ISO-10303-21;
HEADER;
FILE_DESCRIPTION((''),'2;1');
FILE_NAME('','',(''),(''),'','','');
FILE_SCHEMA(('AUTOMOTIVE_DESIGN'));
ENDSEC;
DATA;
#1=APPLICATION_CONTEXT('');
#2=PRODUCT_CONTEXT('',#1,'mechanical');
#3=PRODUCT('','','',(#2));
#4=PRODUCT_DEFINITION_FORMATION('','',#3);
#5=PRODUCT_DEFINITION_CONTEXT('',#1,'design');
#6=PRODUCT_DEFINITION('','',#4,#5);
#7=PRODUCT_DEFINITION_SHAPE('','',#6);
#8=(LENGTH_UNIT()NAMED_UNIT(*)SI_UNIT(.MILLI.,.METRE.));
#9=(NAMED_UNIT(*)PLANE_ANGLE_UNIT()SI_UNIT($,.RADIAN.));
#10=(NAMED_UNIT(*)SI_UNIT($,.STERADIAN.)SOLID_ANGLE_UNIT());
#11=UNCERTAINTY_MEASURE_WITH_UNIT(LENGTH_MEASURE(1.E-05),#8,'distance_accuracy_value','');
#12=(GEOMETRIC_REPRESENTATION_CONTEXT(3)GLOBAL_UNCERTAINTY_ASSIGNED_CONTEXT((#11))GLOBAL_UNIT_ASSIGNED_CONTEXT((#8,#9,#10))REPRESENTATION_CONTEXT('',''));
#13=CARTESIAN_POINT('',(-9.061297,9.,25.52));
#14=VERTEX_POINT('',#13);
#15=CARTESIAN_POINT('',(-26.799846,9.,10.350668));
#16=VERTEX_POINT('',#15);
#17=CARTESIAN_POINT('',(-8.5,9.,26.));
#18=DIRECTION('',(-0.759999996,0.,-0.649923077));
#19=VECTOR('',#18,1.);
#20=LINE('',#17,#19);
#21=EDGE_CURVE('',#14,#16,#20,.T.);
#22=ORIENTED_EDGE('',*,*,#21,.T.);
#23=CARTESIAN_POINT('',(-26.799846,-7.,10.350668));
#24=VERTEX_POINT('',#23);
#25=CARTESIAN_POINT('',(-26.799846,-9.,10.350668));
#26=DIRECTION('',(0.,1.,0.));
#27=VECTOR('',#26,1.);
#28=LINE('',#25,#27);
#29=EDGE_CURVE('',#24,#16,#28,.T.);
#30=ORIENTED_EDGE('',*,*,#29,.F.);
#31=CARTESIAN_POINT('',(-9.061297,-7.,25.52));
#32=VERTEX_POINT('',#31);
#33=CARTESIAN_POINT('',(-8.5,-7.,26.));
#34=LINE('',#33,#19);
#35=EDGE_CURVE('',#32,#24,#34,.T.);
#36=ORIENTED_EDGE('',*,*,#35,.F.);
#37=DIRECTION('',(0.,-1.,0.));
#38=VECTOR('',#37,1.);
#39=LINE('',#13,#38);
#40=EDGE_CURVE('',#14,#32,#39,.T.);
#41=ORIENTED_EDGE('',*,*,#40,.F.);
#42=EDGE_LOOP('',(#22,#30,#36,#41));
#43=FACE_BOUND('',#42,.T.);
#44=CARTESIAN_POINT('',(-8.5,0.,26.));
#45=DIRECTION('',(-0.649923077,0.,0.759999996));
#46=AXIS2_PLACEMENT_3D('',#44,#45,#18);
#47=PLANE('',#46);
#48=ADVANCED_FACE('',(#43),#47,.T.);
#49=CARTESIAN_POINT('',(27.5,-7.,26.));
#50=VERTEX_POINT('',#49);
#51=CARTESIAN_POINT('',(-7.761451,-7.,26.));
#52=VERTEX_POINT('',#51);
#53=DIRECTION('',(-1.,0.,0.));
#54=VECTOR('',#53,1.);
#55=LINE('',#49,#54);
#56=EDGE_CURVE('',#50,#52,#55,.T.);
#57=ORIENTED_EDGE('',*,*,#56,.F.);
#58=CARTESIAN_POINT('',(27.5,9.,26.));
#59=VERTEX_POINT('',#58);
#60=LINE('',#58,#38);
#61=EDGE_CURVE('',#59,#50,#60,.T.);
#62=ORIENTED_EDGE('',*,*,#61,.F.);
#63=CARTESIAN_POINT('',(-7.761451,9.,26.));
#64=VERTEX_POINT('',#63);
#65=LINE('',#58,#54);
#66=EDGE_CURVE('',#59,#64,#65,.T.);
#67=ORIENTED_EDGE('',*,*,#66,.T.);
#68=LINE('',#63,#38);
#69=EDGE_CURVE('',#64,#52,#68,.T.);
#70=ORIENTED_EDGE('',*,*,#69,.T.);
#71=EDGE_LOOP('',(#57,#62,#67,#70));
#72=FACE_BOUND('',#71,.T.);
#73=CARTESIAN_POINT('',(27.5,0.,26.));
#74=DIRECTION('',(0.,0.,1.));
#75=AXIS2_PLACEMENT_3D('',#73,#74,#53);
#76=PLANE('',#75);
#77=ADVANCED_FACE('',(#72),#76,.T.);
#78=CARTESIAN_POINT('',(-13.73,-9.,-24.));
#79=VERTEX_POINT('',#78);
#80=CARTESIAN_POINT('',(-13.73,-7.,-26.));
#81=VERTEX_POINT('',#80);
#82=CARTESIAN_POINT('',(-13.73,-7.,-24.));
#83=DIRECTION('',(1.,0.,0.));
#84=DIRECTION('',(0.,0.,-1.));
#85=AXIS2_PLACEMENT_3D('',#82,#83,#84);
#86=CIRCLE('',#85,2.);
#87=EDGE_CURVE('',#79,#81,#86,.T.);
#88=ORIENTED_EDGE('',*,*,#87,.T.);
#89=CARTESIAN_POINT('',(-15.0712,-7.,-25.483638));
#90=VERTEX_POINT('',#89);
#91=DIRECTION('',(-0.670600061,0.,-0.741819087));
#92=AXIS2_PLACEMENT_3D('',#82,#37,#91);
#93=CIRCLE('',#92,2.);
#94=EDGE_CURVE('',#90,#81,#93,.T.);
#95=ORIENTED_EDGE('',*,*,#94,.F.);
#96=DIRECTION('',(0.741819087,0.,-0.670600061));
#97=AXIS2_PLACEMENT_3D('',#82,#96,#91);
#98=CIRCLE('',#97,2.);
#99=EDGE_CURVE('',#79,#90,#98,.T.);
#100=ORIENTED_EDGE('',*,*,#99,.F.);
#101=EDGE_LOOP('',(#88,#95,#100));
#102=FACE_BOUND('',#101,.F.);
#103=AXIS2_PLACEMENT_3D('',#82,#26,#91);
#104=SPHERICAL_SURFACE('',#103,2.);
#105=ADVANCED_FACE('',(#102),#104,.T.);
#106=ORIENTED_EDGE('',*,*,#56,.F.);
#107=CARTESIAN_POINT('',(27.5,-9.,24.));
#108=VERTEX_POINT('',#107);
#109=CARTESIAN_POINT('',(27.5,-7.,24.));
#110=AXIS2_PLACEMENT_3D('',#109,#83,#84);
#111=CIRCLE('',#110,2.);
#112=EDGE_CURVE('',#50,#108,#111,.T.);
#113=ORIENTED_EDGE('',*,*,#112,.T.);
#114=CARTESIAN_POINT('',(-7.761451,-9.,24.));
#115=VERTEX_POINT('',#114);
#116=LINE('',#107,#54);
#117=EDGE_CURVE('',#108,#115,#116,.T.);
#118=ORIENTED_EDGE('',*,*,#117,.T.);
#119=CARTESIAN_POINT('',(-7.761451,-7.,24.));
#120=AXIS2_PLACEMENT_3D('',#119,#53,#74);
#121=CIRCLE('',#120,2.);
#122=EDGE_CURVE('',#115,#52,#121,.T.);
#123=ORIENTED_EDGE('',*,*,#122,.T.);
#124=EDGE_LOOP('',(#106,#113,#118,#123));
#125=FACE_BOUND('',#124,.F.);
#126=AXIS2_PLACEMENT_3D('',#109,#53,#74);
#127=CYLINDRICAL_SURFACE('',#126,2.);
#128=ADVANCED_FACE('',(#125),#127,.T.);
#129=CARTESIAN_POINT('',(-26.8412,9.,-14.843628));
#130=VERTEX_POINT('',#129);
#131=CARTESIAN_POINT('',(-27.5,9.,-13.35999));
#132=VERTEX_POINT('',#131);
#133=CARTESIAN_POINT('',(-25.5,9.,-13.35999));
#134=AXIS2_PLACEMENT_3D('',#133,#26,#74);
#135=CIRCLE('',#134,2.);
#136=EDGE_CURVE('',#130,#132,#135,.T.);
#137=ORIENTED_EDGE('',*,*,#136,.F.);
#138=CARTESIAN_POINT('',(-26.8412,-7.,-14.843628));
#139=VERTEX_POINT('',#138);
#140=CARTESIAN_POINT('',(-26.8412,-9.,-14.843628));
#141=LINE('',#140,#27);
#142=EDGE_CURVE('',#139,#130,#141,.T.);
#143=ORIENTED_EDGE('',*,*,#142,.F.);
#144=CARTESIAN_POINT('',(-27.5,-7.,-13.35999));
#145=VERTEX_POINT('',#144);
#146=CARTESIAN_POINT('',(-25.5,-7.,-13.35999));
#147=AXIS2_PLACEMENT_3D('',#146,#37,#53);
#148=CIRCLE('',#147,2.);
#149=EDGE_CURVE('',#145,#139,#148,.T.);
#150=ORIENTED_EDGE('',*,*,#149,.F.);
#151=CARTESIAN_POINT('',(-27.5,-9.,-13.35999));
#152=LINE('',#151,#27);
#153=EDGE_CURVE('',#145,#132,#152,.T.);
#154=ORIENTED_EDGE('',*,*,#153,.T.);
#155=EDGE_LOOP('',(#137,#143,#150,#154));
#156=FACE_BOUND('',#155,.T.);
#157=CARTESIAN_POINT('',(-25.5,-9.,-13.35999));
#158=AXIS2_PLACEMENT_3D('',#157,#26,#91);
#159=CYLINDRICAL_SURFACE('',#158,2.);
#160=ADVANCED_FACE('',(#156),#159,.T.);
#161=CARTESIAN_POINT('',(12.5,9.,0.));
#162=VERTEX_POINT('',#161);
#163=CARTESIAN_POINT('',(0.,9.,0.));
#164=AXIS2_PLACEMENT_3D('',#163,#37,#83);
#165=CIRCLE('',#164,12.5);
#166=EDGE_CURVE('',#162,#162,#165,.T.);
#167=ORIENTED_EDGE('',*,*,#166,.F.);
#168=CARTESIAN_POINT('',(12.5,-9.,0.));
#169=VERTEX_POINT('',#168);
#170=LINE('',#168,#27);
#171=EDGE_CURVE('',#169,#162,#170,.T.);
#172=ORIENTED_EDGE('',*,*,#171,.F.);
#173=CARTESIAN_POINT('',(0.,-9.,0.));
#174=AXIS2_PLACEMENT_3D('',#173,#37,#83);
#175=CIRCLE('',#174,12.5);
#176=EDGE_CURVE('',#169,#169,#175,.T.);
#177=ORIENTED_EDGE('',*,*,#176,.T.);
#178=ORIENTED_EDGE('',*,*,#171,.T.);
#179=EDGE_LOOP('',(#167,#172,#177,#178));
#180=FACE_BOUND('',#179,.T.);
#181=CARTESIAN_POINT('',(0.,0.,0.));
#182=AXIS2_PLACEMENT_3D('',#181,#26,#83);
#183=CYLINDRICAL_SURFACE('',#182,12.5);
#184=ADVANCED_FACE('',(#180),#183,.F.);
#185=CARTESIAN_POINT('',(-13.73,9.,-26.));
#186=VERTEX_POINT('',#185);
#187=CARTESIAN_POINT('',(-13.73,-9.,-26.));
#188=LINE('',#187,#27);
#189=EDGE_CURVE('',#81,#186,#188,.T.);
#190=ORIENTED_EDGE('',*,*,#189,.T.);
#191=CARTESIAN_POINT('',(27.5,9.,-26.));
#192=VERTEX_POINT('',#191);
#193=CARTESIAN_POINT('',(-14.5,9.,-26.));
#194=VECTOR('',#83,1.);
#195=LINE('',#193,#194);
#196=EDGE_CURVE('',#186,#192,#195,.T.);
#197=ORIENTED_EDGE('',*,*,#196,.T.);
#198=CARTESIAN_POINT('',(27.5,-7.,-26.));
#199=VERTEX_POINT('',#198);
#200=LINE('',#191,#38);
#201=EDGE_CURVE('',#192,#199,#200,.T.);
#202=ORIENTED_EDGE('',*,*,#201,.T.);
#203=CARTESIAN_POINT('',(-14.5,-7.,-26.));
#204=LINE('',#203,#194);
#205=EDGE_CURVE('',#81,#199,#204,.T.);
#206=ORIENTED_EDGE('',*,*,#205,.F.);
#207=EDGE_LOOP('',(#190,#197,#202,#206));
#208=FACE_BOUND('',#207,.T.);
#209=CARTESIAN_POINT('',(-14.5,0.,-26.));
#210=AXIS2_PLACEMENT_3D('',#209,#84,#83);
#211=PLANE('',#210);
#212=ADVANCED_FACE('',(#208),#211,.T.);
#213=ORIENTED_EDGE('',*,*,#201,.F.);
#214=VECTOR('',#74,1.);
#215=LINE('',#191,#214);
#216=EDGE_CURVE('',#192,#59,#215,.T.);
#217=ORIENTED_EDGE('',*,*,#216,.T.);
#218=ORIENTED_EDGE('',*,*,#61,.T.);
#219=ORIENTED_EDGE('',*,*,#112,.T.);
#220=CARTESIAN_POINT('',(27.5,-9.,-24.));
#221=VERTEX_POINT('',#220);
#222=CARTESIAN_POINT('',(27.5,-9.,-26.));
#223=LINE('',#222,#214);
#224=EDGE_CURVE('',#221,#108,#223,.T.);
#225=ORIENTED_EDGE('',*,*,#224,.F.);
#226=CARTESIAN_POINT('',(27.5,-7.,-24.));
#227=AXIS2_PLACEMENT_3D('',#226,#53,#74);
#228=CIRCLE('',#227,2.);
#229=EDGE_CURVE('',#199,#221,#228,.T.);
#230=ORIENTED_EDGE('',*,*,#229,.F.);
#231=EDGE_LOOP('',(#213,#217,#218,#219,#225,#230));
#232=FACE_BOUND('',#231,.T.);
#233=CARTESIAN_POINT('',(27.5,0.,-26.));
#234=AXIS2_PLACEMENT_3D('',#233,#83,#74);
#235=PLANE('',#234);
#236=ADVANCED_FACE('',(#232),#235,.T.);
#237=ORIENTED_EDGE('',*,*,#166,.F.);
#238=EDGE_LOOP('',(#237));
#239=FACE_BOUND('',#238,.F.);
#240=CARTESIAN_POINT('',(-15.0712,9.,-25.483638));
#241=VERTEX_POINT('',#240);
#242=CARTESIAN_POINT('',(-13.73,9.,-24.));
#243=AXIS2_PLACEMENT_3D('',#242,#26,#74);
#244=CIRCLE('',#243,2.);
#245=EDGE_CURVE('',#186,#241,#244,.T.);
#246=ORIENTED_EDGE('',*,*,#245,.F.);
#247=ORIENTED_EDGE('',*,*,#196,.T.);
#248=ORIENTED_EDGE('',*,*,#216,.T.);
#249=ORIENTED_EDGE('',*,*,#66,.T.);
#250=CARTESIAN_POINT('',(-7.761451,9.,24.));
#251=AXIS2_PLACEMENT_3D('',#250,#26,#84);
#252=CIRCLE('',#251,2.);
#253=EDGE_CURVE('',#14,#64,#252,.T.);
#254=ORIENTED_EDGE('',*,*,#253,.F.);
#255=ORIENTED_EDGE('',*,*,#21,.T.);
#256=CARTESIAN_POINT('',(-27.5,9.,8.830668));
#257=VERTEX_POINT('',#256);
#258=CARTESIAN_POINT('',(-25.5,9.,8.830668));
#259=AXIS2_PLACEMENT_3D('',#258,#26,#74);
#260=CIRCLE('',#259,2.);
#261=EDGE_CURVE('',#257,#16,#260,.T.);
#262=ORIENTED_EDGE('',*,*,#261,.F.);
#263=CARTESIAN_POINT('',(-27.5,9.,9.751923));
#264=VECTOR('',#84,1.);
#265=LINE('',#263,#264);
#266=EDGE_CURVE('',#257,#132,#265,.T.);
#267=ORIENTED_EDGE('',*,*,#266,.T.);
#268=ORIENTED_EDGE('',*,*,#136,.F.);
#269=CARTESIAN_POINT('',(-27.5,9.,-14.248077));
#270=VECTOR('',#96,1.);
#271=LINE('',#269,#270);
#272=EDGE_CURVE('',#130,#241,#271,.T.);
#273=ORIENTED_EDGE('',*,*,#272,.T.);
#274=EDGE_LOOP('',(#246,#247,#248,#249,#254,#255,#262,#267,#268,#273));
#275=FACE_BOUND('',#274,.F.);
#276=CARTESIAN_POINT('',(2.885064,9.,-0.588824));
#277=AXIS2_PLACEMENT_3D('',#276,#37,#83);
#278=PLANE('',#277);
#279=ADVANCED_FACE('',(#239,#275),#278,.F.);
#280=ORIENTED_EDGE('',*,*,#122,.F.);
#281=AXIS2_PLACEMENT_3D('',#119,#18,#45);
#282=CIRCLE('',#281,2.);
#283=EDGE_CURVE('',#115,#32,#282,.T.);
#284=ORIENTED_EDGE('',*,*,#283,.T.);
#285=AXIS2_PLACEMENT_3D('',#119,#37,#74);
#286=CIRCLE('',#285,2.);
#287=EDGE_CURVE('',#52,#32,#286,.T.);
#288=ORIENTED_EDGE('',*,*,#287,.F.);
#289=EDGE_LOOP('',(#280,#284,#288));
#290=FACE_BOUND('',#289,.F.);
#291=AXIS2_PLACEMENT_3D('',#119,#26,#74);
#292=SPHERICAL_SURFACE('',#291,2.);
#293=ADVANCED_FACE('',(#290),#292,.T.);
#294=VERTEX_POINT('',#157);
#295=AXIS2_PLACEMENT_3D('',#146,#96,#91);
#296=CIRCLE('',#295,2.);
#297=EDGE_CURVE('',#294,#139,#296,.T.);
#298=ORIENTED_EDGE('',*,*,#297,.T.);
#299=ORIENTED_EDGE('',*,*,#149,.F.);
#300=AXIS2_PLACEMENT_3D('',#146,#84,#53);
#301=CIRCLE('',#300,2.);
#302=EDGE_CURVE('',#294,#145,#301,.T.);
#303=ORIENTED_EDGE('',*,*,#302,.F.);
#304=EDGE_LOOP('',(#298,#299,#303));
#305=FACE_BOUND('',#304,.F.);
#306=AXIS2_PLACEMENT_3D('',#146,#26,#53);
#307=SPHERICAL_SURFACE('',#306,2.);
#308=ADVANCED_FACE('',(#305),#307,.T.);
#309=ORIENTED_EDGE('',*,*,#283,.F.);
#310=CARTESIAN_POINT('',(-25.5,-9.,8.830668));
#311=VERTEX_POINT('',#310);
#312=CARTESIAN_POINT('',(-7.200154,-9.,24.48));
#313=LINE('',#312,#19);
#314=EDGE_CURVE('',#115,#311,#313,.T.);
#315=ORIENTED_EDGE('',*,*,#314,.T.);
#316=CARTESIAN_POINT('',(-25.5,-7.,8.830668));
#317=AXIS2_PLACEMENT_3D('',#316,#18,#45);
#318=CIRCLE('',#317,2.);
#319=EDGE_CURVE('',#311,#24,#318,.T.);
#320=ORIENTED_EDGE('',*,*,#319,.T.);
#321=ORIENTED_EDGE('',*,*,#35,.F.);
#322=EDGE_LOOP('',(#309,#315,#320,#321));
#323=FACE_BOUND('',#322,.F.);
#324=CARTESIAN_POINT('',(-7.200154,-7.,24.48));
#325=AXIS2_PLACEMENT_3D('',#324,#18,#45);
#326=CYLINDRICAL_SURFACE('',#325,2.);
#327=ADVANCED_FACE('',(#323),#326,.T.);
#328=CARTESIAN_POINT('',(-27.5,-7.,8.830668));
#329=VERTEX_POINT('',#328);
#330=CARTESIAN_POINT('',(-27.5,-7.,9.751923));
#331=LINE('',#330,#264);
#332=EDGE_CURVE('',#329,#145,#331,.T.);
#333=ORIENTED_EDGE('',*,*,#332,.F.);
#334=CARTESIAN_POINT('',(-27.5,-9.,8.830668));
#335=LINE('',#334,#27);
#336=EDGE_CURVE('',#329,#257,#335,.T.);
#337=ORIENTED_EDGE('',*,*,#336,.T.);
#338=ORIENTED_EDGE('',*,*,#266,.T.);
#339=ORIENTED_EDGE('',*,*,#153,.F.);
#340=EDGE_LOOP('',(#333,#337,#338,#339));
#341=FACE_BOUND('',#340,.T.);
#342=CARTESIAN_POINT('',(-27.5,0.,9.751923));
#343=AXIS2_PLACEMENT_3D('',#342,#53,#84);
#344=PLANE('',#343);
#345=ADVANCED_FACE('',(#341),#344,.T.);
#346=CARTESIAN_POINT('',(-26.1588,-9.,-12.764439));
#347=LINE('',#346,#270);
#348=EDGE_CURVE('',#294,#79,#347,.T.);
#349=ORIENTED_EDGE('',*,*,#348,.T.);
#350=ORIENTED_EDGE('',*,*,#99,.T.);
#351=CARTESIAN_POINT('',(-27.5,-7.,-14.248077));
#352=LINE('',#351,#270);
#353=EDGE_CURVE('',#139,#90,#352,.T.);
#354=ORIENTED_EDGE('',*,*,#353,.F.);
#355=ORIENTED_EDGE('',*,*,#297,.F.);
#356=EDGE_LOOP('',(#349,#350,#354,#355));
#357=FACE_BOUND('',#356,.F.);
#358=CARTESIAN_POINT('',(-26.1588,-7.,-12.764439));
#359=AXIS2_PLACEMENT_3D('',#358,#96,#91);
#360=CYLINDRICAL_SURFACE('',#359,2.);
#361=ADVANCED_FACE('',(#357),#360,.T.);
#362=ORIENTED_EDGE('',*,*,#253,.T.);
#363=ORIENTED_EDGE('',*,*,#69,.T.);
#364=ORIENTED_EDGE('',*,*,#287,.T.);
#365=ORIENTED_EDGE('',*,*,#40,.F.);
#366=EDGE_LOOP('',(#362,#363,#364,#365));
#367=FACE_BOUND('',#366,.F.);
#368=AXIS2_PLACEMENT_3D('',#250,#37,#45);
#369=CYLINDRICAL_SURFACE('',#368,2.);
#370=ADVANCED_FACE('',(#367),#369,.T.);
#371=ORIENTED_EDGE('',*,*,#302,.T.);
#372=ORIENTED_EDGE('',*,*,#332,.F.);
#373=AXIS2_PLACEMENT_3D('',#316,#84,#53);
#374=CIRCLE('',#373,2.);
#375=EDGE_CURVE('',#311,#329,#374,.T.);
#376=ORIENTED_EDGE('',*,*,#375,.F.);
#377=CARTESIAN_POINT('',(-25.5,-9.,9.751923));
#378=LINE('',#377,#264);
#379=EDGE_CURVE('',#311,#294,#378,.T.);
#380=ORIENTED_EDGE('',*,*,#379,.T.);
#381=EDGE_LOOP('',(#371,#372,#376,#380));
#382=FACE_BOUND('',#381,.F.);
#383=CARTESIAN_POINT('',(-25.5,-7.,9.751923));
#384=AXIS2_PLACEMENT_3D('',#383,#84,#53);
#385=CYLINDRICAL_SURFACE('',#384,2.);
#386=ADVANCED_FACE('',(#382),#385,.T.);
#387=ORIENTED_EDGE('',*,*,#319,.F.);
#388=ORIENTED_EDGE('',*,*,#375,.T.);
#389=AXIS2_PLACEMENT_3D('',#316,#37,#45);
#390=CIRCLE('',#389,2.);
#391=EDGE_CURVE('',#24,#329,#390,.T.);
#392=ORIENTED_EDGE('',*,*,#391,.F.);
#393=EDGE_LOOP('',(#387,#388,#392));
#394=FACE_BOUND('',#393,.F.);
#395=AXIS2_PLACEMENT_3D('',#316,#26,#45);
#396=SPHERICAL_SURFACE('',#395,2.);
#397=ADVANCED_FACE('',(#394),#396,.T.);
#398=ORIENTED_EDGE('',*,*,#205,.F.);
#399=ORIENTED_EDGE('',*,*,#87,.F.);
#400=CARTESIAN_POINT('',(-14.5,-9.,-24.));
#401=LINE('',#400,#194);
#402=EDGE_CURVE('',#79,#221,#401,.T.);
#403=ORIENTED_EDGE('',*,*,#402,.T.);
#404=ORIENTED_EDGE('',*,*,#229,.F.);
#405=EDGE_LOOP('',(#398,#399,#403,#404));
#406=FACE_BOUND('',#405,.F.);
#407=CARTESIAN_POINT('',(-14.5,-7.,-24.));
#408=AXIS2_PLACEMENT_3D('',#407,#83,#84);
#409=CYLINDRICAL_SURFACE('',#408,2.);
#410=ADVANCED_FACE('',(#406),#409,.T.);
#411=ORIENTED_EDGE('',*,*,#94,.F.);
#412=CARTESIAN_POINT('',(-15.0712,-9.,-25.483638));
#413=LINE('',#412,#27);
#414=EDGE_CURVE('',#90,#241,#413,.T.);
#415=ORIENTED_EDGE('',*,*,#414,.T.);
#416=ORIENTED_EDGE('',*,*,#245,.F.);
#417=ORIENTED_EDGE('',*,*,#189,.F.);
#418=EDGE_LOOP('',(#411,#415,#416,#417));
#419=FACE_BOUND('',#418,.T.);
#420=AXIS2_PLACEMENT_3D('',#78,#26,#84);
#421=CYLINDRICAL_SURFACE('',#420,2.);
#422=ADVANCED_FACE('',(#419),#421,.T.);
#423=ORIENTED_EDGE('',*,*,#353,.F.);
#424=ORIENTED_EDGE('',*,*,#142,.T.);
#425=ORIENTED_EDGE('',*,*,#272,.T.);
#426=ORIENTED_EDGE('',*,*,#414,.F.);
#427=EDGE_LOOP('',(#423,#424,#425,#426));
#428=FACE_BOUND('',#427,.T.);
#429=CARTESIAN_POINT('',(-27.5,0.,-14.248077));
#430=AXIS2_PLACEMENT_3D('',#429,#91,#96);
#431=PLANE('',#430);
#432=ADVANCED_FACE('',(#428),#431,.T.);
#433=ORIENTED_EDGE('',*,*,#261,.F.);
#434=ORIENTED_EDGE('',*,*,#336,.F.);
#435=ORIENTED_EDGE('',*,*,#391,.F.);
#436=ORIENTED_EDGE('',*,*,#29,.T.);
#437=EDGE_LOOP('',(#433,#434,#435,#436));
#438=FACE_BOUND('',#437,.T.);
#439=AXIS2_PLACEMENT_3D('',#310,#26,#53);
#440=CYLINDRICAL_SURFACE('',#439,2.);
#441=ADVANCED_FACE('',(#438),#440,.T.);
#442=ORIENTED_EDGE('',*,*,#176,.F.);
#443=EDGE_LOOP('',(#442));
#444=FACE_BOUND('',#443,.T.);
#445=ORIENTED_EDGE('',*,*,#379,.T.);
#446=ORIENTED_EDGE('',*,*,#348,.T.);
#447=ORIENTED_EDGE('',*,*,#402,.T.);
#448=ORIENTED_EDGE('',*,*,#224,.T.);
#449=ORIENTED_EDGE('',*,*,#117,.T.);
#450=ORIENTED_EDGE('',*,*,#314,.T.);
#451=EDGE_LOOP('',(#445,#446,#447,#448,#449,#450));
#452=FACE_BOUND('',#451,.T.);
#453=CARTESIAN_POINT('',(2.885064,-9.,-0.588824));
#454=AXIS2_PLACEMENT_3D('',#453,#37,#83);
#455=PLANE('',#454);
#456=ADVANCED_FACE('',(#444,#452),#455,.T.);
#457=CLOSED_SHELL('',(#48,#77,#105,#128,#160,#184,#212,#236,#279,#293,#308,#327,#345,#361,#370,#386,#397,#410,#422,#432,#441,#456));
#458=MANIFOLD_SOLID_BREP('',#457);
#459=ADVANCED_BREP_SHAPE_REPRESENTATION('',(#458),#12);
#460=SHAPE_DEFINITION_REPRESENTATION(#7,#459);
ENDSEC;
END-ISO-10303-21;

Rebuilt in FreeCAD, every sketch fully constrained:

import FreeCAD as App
import Part
import Sketcher
from FreeCAD import Vector
Q = App.Units.Quantity


def edges_at(feature, points):
    """Names of the edges that pass closest to the given points."""
    edges = feature.Shape.Edges
    near = lambda p: min(range(len(edges)), key=lambda i: edges[i].distToShape(Part.Vertex(*p))[0])
    return sorted({f"Edge{near(p) + 1}" for p in points})

doc = App.newDocument("Part")
params = doc.addObject("Spreadsheet::Sheet", "Params")
for row, (alias, value) in enumerate([
    ("sketch1_diameter", "25 mm"),
    ("sketch1_width", "42 mm"),
    ("sketch1_width2", "36 mm"),
    ("sketch1_height", "52 mm"),
    ("sketch1_height2", "24 mm"),
    ("pad1_length", "18 mm"),
    ("fillet_radius", "2 mm"),
], start=1):
    params.set(f"A{row}", alias)
    params.set(f"B{row}", "=" + value)
    params.setAlias(f"B{row}", alias)

body = doc.addObject("PartDesign::Body", "Body")

# Sketch on XZ plane
sketch1 = body.newObject("Sketcher::SketchObject", "Sketch")
sketch1.AttachmentSupport = (doc.getObject("XZ_Plane"), [""])
sketch1.MapMode = "FlatFace"
sketch1.addGeometry([
    Part.LineSegment(Vector(-14, -26, 0), Vector(28, -26, 0)),  # 0
    Part.LineSegment(Vector(28, -26, 0), Vector(28, 26, 0)),  # 1
    Part.LineSegment(Vector(28, 26, 0), Vector(-8, 26, 0)),  # 2
    Part.LineSegment(Vector(-8, 26, 0), Vector(-28, 10, 0)),  # 3
    Part.LineSegment(Vector(-28, 10, 0), Vector(-28, -14, 0)),  # 4
    Part.LineSegment(Vector(-28, -14, 0), Vector(-14, -26, 0)),  # 5
    Part.Circle(Vector(0, 0, 0), Vector(0, 0, 1), 12),  # 6
], False)
sketch1.addConstraint([
    Sketcher.Constraint("Coincident", 0, 2, 1, 1),
    Sketcher.Constraint("Coincident", 1, 2, 2, 1),
    Sketcher.Constraint("Coincident", 2, 2, 3, 1),
    Sketcher.Constraint("Coincident", 3, 2, 4, 1),
    Sketcher.Constraint("Coincident", 4, 2, 5, 1),
    Sketcher.Constraint("Coincident", 5, 2, 0, 1),
    Sketcher.Constraint("Horizontal", 0),
    Sketcher.Constraint("Vertical", 1),
    Sketcher.Constraint("Horizontal", 2),
    Sketcher.Constraint("Vertical", 4),
    Sketcher.Constraint("Coincident", 6, 3, -1, 1),
    Sketcher.Constraint("Diameter", 6, Q("25 mm")),
    Sketcher.Constraint("DistanceX", 0, 1, 0, 2, Q("42 mm")),
    Sketcher.Constraint("DistanceX", 2, 2, 2, 1, Q("36 mm")),
    Sketcher.Constraint("DistanceY", 1, 1, 1, 2, Q("52 mm")),
    Sketcher.Constraint("DistanceY", 4, 2, 4, 1, Q("24 mm")),
    Sketcher.Constraint("Distance", 3, Q("25 mm")),
    Sketcher.Constraint("DistanceY", 0, 2, -1, 1, Q("26 mm")),
    Sketcher.Constraint("DistanceX", 3, 2, 2, 2, Q("19 mm")),
    Sketcher.Constraint("DistanceX", -1, 1, 0, 2, Q("27.5 mm")),
])
sketch1.setExpression("Constraints[11]", "Params.sketch1_diameter")
sketch1.setExpression("Constraints[12]", "Params.sketch1_width")
sketch1.setExpression("Constraints[13]", "Params.sketch1_width2")
sketch1.setExpression("Constraints[14]", "Params.sketch1_height")
sketch1.setExpression("Constraints[15]", "Params.sketch1_height2")
pad1 = body.newObject("PartDesign::Pad", "Pad")
pad1.Profile = sketch1
pad1.setExpression("Length", "Params.pad1_length")
pad1.Midplane = True
doc.recompute()

fillet = body.newObject("PartDesign::Fillet", "Fillet")
fillet.Base = (pad1, edges_at(pad1, [
    (9.5, -9, 26),
    (-18, -9, 17.876),
    (-27.5, -9, -2.248),
    (-21, -9, -20.124),
    (6.5, -9, -26),
    (-8.5, 0, 26),
    (-27.5, 0, 9.752),
    (-27.5, 0, -14.248),
    (-14.5, 0, -26),
]))
fillet.setExpression("Radius", "Params.fillet_radius")

doc.recompute()
